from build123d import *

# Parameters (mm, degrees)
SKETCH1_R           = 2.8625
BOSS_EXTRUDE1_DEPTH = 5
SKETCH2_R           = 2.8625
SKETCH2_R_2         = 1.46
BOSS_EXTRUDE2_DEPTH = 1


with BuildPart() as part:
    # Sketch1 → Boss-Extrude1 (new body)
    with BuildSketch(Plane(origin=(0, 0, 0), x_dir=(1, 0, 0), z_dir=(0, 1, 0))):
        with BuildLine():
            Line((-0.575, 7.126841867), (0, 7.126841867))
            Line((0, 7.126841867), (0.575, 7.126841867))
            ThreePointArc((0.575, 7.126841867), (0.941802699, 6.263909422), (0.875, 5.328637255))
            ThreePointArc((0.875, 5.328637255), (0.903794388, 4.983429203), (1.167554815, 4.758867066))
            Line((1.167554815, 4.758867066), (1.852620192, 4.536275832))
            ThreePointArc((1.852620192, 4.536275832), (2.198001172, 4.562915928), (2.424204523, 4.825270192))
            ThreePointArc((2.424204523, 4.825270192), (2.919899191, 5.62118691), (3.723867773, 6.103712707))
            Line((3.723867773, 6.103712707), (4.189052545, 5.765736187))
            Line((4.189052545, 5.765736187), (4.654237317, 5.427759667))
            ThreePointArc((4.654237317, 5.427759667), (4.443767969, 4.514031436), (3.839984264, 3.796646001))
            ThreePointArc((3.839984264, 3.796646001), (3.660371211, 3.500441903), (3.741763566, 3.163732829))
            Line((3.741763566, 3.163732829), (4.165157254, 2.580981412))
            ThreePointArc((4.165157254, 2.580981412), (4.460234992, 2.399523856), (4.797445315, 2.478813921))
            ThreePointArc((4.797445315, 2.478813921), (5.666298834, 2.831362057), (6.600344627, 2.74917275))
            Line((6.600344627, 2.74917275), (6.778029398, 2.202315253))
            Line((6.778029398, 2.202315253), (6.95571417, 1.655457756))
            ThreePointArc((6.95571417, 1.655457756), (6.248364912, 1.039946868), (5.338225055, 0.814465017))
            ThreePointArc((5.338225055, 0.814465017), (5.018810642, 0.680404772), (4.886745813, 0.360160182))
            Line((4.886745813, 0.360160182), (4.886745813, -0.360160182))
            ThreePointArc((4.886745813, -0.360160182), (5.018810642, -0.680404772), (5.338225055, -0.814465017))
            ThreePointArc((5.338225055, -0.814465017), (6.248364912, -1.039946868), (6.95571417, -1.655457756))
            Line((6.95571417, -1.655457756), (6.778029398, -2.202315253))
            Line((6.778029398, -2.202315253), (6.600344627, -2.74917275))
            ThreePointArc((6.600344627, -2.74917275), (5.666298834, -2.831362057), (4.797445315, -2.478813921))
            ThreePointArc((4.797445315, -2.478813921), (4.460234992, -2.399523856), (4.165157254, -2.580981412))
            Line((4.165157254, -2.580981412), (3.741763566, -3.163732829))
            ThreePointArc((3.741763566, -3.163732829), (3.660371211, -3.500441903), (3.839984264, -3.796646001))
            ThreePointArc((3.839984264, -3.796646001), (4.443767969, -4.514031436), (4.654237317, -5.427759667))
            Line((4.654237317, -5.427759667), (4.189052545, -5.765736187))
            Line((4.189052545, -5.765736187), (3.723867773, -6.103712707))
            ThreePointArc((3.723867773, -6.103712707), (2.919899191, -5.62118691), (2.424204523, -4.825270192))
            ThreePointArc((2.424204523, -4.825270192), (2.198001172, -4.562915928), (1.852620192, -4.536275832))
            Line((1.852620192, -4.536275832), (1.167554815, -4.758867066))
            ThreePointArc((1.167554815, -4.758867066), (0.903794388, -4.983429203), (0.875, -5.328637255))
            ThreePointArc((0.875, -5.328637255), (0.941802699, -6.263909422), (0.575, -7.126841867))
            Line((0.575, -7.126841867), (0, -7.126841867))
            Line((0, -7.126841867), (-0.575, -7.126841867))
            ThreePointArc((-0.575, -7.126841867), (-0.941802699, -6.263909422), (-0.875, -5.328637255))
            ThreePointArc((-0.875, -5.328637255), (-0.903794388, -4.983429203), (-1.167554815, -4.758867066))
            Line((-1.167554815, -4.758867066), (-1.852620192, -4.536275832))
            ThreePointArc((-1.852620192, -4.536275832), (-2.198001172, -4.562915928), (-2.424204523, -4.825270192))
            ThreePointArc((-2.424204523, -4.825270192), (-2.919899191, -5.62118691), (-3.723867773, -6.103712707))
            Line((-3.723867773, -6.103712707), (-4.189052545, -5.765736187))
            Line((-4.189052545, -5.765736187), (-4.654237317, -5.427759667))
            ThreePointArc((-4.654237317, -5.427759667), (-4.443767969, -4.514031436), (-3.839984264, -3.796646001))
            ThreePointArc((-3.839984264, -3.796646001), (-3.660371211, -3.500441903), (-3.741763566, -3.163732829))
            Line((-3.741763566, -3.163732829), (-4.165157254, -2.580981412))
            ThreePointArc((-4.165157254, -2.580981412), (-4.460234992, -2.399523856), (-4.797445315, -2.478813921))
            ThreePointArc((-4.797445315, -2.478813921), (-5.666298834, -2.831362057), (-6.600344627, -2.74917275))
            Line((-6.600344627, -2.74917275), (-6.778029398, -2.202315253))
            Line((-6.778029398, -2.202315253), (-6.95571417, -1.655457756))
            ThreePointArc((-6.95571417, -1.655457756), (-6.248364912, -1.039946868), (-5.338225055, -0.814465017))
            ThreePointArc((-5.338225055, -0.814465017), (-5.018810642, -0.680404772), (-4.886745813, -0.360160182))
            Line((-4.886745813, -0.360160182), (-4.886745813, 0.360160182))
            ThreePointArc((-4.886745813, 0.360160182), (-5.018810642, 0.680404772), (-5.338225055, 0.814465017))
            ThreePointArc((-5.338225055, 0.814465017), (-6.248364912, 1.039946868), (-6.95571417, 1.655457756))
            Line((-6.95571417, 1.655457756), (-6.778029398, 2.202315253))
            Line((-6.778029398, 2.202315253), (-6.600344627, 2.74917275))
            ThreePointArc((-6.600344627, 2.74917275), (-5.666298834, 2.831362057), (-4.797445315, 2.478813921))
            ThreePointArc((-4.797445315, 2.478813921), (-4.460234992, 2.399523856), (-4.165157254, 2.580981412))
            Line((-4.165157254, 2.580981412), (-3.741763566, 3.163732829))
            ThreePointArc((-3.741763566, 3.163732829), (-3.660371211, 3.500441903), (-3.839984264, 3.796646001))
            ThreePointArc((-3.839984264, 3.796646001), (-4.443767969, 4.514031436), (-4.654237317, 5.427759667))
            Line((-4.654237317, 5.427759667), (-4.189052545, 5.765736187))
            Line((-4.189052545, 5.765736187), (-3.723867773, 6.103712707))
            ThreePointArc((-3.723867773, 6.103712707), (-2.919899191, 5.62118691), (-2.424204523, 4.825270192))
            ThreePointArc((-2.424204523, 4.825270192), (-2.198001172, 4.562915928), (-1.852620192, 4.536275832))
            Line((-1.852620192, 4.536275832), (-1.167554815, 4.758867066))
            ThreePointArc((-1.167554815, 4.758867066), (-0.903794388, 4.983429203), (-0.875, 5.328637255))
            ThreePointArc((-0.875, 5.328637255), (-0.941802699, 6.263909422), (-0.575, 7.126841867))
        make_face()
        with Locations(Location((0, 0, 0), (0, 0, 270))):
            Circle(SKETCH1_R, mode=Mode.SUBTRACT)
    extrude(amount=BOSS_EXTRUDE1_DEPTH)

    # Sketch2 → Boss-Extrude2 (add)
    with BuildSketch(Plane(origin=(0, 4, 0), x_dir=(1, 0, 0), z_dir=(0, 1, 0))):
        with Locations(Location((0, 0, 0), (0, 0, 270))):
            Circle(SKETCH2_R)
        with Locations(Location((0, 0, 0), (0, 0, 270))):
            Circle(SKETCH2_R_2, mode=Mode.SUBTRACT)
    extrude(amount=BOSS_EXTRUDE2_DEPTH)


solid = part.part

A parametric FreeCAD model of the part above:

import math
import FreeCAD as App
import Part
import Sketcher
Q = App.Units.Quantity

doc = App.newDocument("Part")
body = doc.addObject("PartDesign::Body", "Body")

# Sketch on XZ plane
sketch1 = body.newObject("Sketcher::SketchObject", "Sketch")
sketch1.AttachmentSupport = (doc.getObject("XZ_Plane"), [""])
sketch1.MapMode = "FlatFace"
sketch1.addGeometry([
    Part.LineSegment(App.Vector(0.57, -7.13, 0), App.Vector(-0.57, -7.13, 0)),  # 0
    Part.ArcOfCircle(Part.Circle(App.Vector(1.03, -5.93, 0), App.Vector(0, 0, 1), 2), math.radians(162), math.radians(217)),  # 1
    Part.ArcOfCircle(Part.Circle(App.Vector(-1.31, -5.19, 0), App.Vector(0, 0, 1), 0.45), math.radians(-18), math.radians(72)),  # 2
    Part.LineSegment(App.Vector(-1.17, -4.76, 0), App.Vector(-1.85, -4.54, 0)),  # 3
    Part.ArcOfCircle(Part.Circle(App.Vector(-1.99, -4.97, 0), App.Vector(0, 0, 1), 0.45), math.radians(72), math.radians(162)),  # 4
    Part.ArcOfCircle(Part.Circle(App.Vector(-4.32, -4.2, 0), App.Vector(0, 0, 1), 2), math.radians(-73), math.radians(-18)),  # 5
    Part.LineSegment(App.Vector(-3.72, -6.1, 0), App.Vector(-4.65, -5.43, 0)),  # 6
    Part.ArcOfCircle(Part.Circle(App.Vector(-2.65, -5.41, 0), App.Vector(0, 0, 1), 2), math.radians(126), math.radians(181)),  # 7
    Part.ArcOfCircle(Part.Circle(App.Vector(-4.11, -3.43, 0), App.Vector(0, 0, 1), 0.45), math.radians(-54), math.radians(36)),  # 8
    Part.LineSegment(App.Vector(-3.74, -3.16, 0), App.Vector(-4.17, -2.58, 0)),  # 9
    Part.ArcOfCircle(Part.Circle(App.Vector(-4.53, -2.85, 0), App.Vector(0, 0, 1), 0.45), math.radians(36), math.radians(126)),  # 10
    Part.ArcOfCircle(Part.Circle(App.Vector(-5.96, -0.85, 0), App.Vector(0, 0, 1), 2), math.radians(-109), math.radians(-54)),  # 11
    Part.LineSegment(App.Vector(-6.6, -2.75, 0), App.Vector(-6.78, -2.2, 0)),  # 12
    Part.LineSegment(App.Vector(-6.78, -2.2, 0), App.Vector(-6.96, -1.66, 0)),  # 13
    Part.ArcOfCircle(Part.Circle(App.Vector(-5.33, -2.81, 0), App.Vector(0, 0, 1), 2), math.radians(90), math.radians(145)),  # 14
    Part.ArcOfCircle(Part.Circle(App.Vector(-5.34, -0.36, 0), App.Vector(0, 0, 1), 0.45), math.radians(-90), math.radians(0)),  # 15
    Part.LineSegment(App.Vector(-4.89, -0.36, 0), App.Vector(-4.89, 0.36, 0)),  # 16
    Part.ArcOfCircle(Part.Circle(App.Vector(-5.34, 0.36, 0), App.Vector(0, 0, 1), 0.45), math.radians(0), math.radians(90)),  # 17
    Part.ArcOfCircle(Part.Circle(App.Vector(-5.33, 2.81, 0), App.Vector(0, 0, 1), 2), math.radians(-145), math.radians(-90)),  # 18
    Part.LineSegment(App.Vector(-6.96, 1.66, 0), App.Vector(-6.78, 2.2, 0)),  # 19
    Part.LineSegment(App.Vector(-6.78, 2.2, 0), App.Vector(-6.6, 2.75, 0)),  # 20
    Part.ArcOfCircle(Part.Circle(App.Vector(-5.96, 0.85, 0), App.Vector(0, 0, 1), 2), math.radians(54), math.radians(109)),  # 21
    Part.ArcOfCircle(Part.Circle(App.Vector(-4.53, 2.85, 0), App.Vector(0, 0, 1), 0.45), math.radians(-126), math.radians(-36)),  # 22
    Part.LineSegment(App.Vector(-4.17, 2.58, 0), App.Vector(-3.74, 3.16, 0)),  # 23
    Part.ArcOfCircle(Part.Circle(App.Vector(-4.11, 3.43, 0), App.Vector(0, 0, 1), 0.45), math.radians(-36), math.radians(54)),  # 24
    Part.ArcOfCircle(Part.Circle(App.Vector(-2.65, 5.41, 0), App.Vector(0, 0, 1), 2), math.radians(179), math.radians(234)),  # 25
    Part.LineSegment(App.Vector(-4.65, 5.43, 0), App.Vector(-3.72, 6.1, 0)),  # 26
    Part.ArcOfCircle(Part.Circle(App.Vector(-4.32, 4.2, 0), App.Vector(0, 0, 1), 2), math.radians(18), math.radians(73)),  # 27
    Part.ArcOfCircle(Part.Circle(App.Vector(-1.99, 4.97, 0), App.Vector(0, 0, 1), 0.45), math.radians(-162), math.radians(-72)),  # 28
    Part.LineSegment(App.Vector(-1.85, 4.54, 0), App.Vector(-1.17, 4.76, 0)),  # 29
    Part.ArcOfCircle(Part.Circle(App.Vector(-1.31, 5.19, 0), App.Vector(0, 0, 1), 0.45), math.radians(-72), math.radians(18)),  # 30
    Part.ArcOfCircle(Part.Circle(App.Vector(1.03, 5.93, 0), App.Vector(0, 0, 1), 2), math.radians(143), math.radians(198)),  # 31
    Part.LineSegment(App.Vector(-0.57, 7.13, 0), App.Vector(0.57, 7.13, 0)),  # 32
    Part.ArcOfCircle(Part.Circle(App.Vector(-1.03, 5.93, 0), App.Vector(0, 0, 1), 2), math.radians(-18), math.radians(37)),  # 33
    Part.ArcOfCircle(Part.Circle(App.Vector(1.31, 5.19, 0), App.Vector(0, 0, 1), 0.45), math.radians(162), math.radians(252)),  # 34
    Part.LineSegment(App.Vector(1.17, 4.76, 0), App.Vector(1.85, 4.54, 0)),  # 35
    Part.ArcOfCircle(Part.Circle(App.Vector(1.99, 4.97, 0), App.Vector(0, 0, 1), 0.45), math.radians(-108), math.radians(-18)),  # 36
    Part.ArcOfCircle(Part.Circle(App.Vector(4.32, 4.2, 0), App.Vector(0, 0, 1), 2), math.radians(107), math.radians(162)),  # 37
    Part.LineSegment(App.Vector(3.72, 6.1, 0), App.Vector(4.65, 5.43, 0)),  # 38
    Part.ArcOfCircle(Part.Circle(App.Vector(2.65, 5.41, 0), App.Vector(0, 0, 1), 2), math.radians(-54), math.radians(1)),  # 39
    Part.ArcOfCircle(Part.Circle(App.Vector(4.11, 3.43, 0), App.Vector(0, 0, 1), 0.45), math.radians(126), math.radians(216)),  # 40
    Part.LineSegment(App.Vector(3.74, 3.16, 0), App.Vector(4.17, 2.58, 0)),  # 41
    Part.ArcOfCircle(Part.Circle(App.Vector(4.53, 2.85, 0), App.Vector(0, 0, 1), 0.45), math.radians(-144), math.radians(-54)),  # 42
    Part.ArcOfCircle(Part.Circle(App.Vector(5.96, 0.85, 0), App.Vector(0, 0, 1), 2), math.radians(71), math.radians(126)),  # 43
    Part.LineSegment(App.Vector(6.6, 2.75, 0), App.Vector(6.78, 2.2, 0)),  # 44
    Part.LineSegment(App.Vector(6.78, 2.2, 0), App.Vector(6.96, 1.66, 0)),  # 45
    Part.ArcOfCircle(Part.Circle(App.Vector(5.33, 2.81, 0), App.Vector(0, 0, 1), 2), math.radians(-90), math.radians(-35)),  # 46
    Part.ArcOfCircle(Part.Circle(App.Vector(5.34, 0.36, 0), App.Vector(0, 0, 1), 0.45), math.radians(90), math.radians(180)),  # 47
    Part.LineSegment(App.Vector(4.89, 0.36, 0), App.Vector(4.89, -0.36, 0)),  # 48
    Part.ArcOfCircle(Part.Circle(App.Vector(5.34, -0.36, 0), App.Vector(0, 0, 1), 0.45), math.radians(180), math.radians(270)),  # 49
    Part.ArcOfCircle(Part.Circle(App.Vector(5.33, -2.81, 0), App.Vector(0, 0, 1), 2), math.radians(35), math.radians(90)),  # 50
    Part.LineSegment(App.Vector(6.96, -1.66, 0), App.Vector(6.78, -2.2, 0)),  # 51
    Part.LineSegment(App.Vector(6.78, -2.2, 0), App.Vector(6.6, -2.75, 0)),  # 52
    Part.ArcOfCircle(Part.Circle(App.Vector(5.96, -0.85, 0), App.Vector(0, 0, 1), 2), math.radians(-126), math.radians(-71)),  # 53
    Part.ArcOfCircle(Part.Circle(App.Vector(4.53, -2.85, 0), App.Vector(0, 0, 1), 0.45), math.radians(54), math.radians(144)),  # 54
    Part.LineSegment(App.Vector(4.17, -2.58, 0), App.Vector(3.74, -3.16, 0)),  # 55
    Part.ArcOfCircle(Part.Circle(App.Vector(4.11, -3.43, 0), App.Vector(0, 0, 1), 0.45), math.radians(144), math.radians(234)),  # 56
    Part.ArcOfCircle(Part.Circle(App.Vector(2.65, -5.41, 0), App.Vector(0, 0, 1), 2), math.radians(-1), math.radians(54)),  # 57
    Part.LineSegment(App.Vector(4.65, -5.43, 0), App.Vector(3.72, -6.1, 0)),  # 58
    Part.ArcOfCircle(Part.Circle(App.Vector(4.32, -4.2, 0), App.Vector(0, 0, 1), 2), math.radians(-162), math.radians(-107)),  # 59
    Part.ArcOfCircle(Part.Circle(App.Vector(1.99, -4.97, 0), App.Vector(0, 0, 1), 0.45), math.radians(18), math.radians(108)),  # 60
    Part.LineSegment(App.Vector(1.85, -4.54, 0), App.Vector(1.17, -4.76, 0)),  # 61
    Part.ArcOfCircle(Part.Circle(App.Vector(1.31, -5.19, 0), App.Vector(0, 0, 1), 0.45), math.radians(108), math.radians(198)),  # 62
    Part.ArcOfCircle(Part.Circle(App.Vector(-1.03, -5.93, 0), App.Vector(0, 0, 1), 2), math.radians(-37), math.radians(18)),  # 63
    Part.Circle(App.Vector(0, 0, 0), App.Vector(0, 0, 1), 2.86),  # 64
], False)
sketch1.addConstraint([
    Sketcher.Constraint("Coincident", 0, 2, 1, 2),
    Sketcher.Constraint("Tangent", 1, 1, 2, 1),
    Sketcher.Constraint("Tangent", 2, 2, 3, 1),
    Sketcher.Constraint("Tangent", 3, 2, 4, 1),
    Sketcher.Constraint("Tangent", 4, 2, 5, 2),
    Sketcher.Constraint("Coincident", 5, 1, 6, 1),
    Sketcher.Constraint("Coincident", 6, 2, 7, 2),
    Sketcher.Constraint("Tangent", 7, 1, 8, 1),
    Sketcher.Constraint("Tangent", 8, 2, 9, 1),
    Sketcher.Constraint("Tangent", 9, 2, 10, 1),
    Sketcher.Constraint("Tangent", 10, 2, 11, 2),
    Sketcher.Constraint("Coincident", 11, 1, 12, 1),
    Sketcher.Constraint("Coincident", 12, 2, 13, 1),
    Sketcher.Constraint("Coincident", 13, 2, 14, 2),
    Sketcher.Constraint("Tangent", 14, 1, 15, 1),
    Sketcher.Constraint("Tangent", 15, 2, 16, 1),
    Sketcher.Constraint("Tangent", 16, 2, 17, 1),
    Sketcher.Constraint("Tangent", 17, 2, 18, 2),
    Sketcher.Constraint("Coincident", 18, 1, 19, 1),
    Sketcher.Constraint("Coincident", 19, 2, 20, 1),
    Sketcher.Constraint("Coincident", 20, 2, 21, 2),
    Sketcher.Constraint("Tangent", 21, 1, 22, 1),
    Sketcher.Constraint("Tangent", 22, 2, 23, 1),
    Sketcher.Constraint("Tangent", 23, 2, 24, 1),
    Sketcher.Constraint("Tangent", 24, 2, 25, 2),
    Sketcher.Constraint("Coincident", 25, 1, 26, 1),
    Sketcher.Constraint("Coincident", 26, 2, 27, 2),
    Sketcher.Constraint("Tangent", 27, 1, 28, 1),
    Sketcher.Constraint("Tangent", 28, 2, 29, 1),
    Sketcher.Constraint("Tangent", 29, 2, 30, 1),
    Sketcher.Constraint("Tangent", 30, 2, 31, 2),
    Sketcher.Constraint("Coincident", 31, 1, 32, 1),
    Sketcher.Constraint("Coincident", 32, 2, 33, 2),
    Sketcher.Constraint("Tangent", 33, 1, 34, 1),
    Sketcher.Constraint("Tangent", 34, 2, 35, 1),
    Sketcher.Constraint("Tangent", 35, 2, 36, 1),
    Sketcher.Constraint("Tangent", 36, 2, 37, 2),
    Sketcher.Constraint("Coincident", 37, 1, 38, 1),
    Sketcher.Constraint("Coincident", 38, 2, 39, 2),
    Sketcher.Constraint("Tangent", 39, 1, 40, 1),
    Sketcher.Constraint("Tangent", 40, 2, 41, 1),
    Sketcher.Constraint("Tangent", 41, 2, 42, 1),
    Sketcher.Constraint("Tangent", 42, 2, 43, 2),
    Sketcher.Constraint("Coincident", 43, 1, 44, 1),
    Sketcher.Constraint("Coincident", 44, 2, 45, 1),
    Sketcher.Constraint("Coincident", 45, 2, 46, 2),
    Sketcher.Constraint("Tangent", 46, 1, 47, 1),
    Sketcher.Constraint("Tangent", 47, 2, 48, 1),
    Sketcher.Constraint("Tangent", 48, 2, 49, 1),
    Sketcher.Constraint("Tangent", 49, 2, 50, 2),
    Sketcher.Constraint("Coincident", 50, 1, 51, 1),
    Sketcher.Constraint("Coincident", 51, 2, 52, 1),
    Sketcher.Constraint("Coincident", 52, 2, 53, 2),
    Sketcher.Constraint("Tangent", 53, 1, 54, 1),
    Sketcher.Constraint("Tangent", 54, 2, 55, 1),
    Sketcher.Constraint("Tangent", 55, 2, 56, 1),
    Sketcher.Constraint("Tangent", 56, 2, 57, 2),
    Sketcher.Constraint("Coincident", 57, 1, 58, 1),
    Sketcher.Constraint("Coincident", 58, 2, 59, 2),
    Sketcher.Constraint("Tangent", 59, 1, 60, 1),
    Sketcher.Constraint("Tangent", 60, 2, 61, 1),
    Sketcher.Constraint("Tangent", 61, 2, 62, 1),
    Sketcher.Constraint("Tangent", 62, 2, 63, 2),
    Sketcher.Constraint("Coincident", 63, 1, 0, 1),
    Sketcher.Constraint("Horizontal", 0),
    Sketcher.Constraint("Vertical", 16),
    Sketcher.Constraint("Horizontal", 32),
    Sketcher.Constraint("Vertical", 48),
    Sketcher.Constraint("Coincident", 64, 3, -1, 1),
    Sketcher.Constraint("Equal", 2, 4),
    Sketcher.Constraint("Equal", 1, 5),
    Sketcher.Constraint("Equal", 5, 7),
    Sketcher.Constraint("Equal", 4, 8),
    Sketcher.Constraint("Equal", 8, 10),
    Sketcher.Constraint("Equal", 7, 11),
    Sketcher.Constraint("Equal", 11, 14),
    Sketcher.Constraint("Equal", 10, 15),
    Sketcher.Constraint("Equal", 15, 17),
    Sketcher.Constraint("Equal", 14, 18),
    Sketcher.Constraint("Equal", 18, 21),
    Sketcher.Constraint("Equal", 17, 22),
    Sketcher.Constraint("Equal", 22, 24),
    Sketcher.Constraint("Equal", 21, 25),
    Sketcher.Constraint("Equal", 25, 27),
    Sketcher.Constraint("Equal", 24, 28),
    Sketcher.Constraint("Equal", 28, 30),
    Sketcher.Constraint("Equal", 27, 31),
    Sketcher.Constraint("Equal", 31, 33),
    Sketcher.Constraint("Equal", 30, 34),
    Sketcher.Constraint("Equal", 34, 36),
    Sketcher.Constraint("Equal", 33, 37),
    Sketcher.Constraint("Equal", 37, 39),
    Sketcher.Constraint("Equal", 36, 40),
    Sketcher.Constraint("Equal", 40, 42),
    Sketcher.Constraint("Equal", 39, 43),
    Sketcher.Constraint("Equal", 43, 46),
    Sketcher.Constraint("Equal", 42, 47),
    Sketcher.Constraint("Equal", 47, 49),
    Sketcher.Constraint("Equal", 46, 50),
    Sketcher.Constraint("Equal", 50, 53),
    Sketcher.Constraint("Equal", 49, 54),
    Sketcher.Constraint("Equal", 54, 56),
    Sketcher.Constraint("Equal", 53, 57),
    Sketcher.Constraint("Equal", 57, 59),
    Sketcher.Constraint("Equal", 56, 60),
    Sketcher.Constraint("Equal", 60, 62),
    Sketcher.Constraint("Equal", 59, 63),
    Sketcher.Constraint("Symmetric", 1, 3, 33, 3, -1, 1),
    Sketcher.Constraint("Symmetric", 4, 3, 36, 3, -1, 1),
    Sketcher.Constraint("Symmetric", 7, 3, 39, 3, -1, 1),
    Sketcher.Constraint("Symmetric", 10, 3, 42, 3, -1, 1),
    Sketcher.Constraint("Symmetric", 14, 3, 46, 3, -1, 1),
    Sketcher.Constraint("Symmetric", 17, 3, 49, 3, -1, 1),
    Sketcher.Constraint("Symmetric", 21, 3, 53, 3, -1, 1),
    Sketcher.Constraint("Symmetric", 24, 3, 56, 3, -1, 1),
    Sketcher.Constraint("Symmetric", 27, 3, 59, 3, -1, 1),
    Sketcher.Constraint("Symmetric", 30, 3, 62, 3, -1, 1),
    Sketcher.Constraint("Symmetric", 5, 1, 37, 1, -1, 1),
    Sketcher.Constraint("Symmetric", 11, 1, 43, 1, -1, 1),
    Sketcher.Constraint("Symmetric", 12, 2, 44, 2, -1, 1),
    Sketcher.Constraint("Symmetric", 18, 1, 50, 1, -1, 1),
    Sketcher.Constraint("Symmetric", 19, 2, 51, 2, -1, 1),
    Sketcher.Constraint("Symmetric", 25, 1, 57, 1, -1, 1),
    Sketcher.Constraint("Symmetric", 31, 1, 63, 1, -1, 1),
    Sketcher.Constraint("Symmetric", 31, 3, 33, 3, -2),
    Sketcher.Constraint("Symmetric", 28, 3, 36, 3, -2),
    Sketcher.Constraint("Symmetric", 25, 3, 39, 3, -2),
    Sketcher.Constraint("Symmetric", 22, 3, 42, 3, -2),
    Sketcher.Constraint("Symmetric", 18, 3, 46, 3, -2),
    Sketcher.Constraint("Symmetric", 26, 2, 37, 1, -2),
    Sketcher.Constraint("Symmetric", 20, 2, 43, 1, -2),
    Sketcher.Constraint("Symmetric", 19, 2, 44, 2, -2),
    Sketcher.Constraint("Symmetric", 9, 2, 54, 2, -2),
    Sketcher.Constraint("Symmetric", 3, 2, 60, 2, -2),
    Sketcher.Constraint("Parallel", 12, 13),
    Sketcher.Constraint("Perpendicular", 3, 19),
    Sketcher.Constraint("Parallel", 19, 20),
    Sketcher.Constraint("Perpendicular", 6, 23),
    Sketcher.Constraint("Perpendicular", 9, 26),
    Sketcher.Constraint("Perpendicular", 20, 35),
    Sketcher.Constraint("Perpendicular", 23, 38),
    Sketcher.Constraint("Perpendicular", 26, 41),
    Sketcher.Constraint("Parallel", 44, 45),
    Sketcher.Constraint("Parallel", 51, 52),
    Sketcher.Constraint("Perpendicular", 41, 58),
    Sketcher.Constraint("Equal", 3, 9),
    Sketcher.Constraint("Equal", 12, 13),
    Sketcher.Constraint("Radius", 1, 2.0),
    Sketcher.Constraint("Angle", 3, Q("162 deg")),
    Sketcher.Constraint("Angle", 6, Q("144 deg")),
    Sketcher.Constraint("Diameter", 64, 5.725),
    Sketcher.Constraint("DistanceX", 0, 2, 0, 1, 1.15),
    Sketcher.Constraint("Distance", 6, 1.15),
    Sketcher.Constraint("Distance", 12, 0.575),
    Sketcher.Constraint("DistanceX", 1, 1, -1, 1, 0.875),
    Sketcher.Constraint("Radius", 2, 0.454314),
    Sketcher.Constraint("DistanceY", 16, 1, 16, 2, 0.72032),
    Sketcher.Constraint("DistanceX", 11, 3, -1, 1, 5.962898),
    Sketcher.Constraint("Distance", 3, 0.72032),
    Sketcher.Constraint("DistanceX", -1, 1, 1, 3, 1.030932),
    Sketcher.Constraint("DistanceY", 5, 3, -1, 1, 4.195381),
    Sketcher.Constraint("DistanceX", 7, 3, -1, 1, 2.654342),
    Sketcher.Constraint("DistanceX", 8, 3, -1, 1, 4.109311),
    Sketcher.Constraint("DistanceY", 8, 3, -1, 1, 3.430772),
    Sketcher.Constraint("DistanceX", 15, 3, -1, 1, 5.341059),
    Sketcher.Constraint("DistanceY", 0, 2, -1, 1, 7.126842),
    Sketcher.Constraint("DistanceX", 12, 2, -1, 1, 6.778029),
])
pad1 = body.newObject("PartDesign::Pad", "Pad")
pad1.Profile = sketch1
pad1.Length = 5
pad1.Reversed = True

# Sketch on XZ plane
sketch2 = body.newObject("Sketcher::SketchObject", "Sketch001")
sketch2.AttachmentSupport = (doc.getObject("XZ_Plane"), [""])
sketch2.MapMode = "FlatFace"
sketch2.AttachmentOffset = App.Placement(App.Vector(0, 0, -4), App.Rotation())
sketch2.addGeometry([
    Part.Circle(App.Vector(0, 0, 0), App.Vector(0, 0, 1), 2.9),
    Part.Circle(App.Vector(0, 0, 0), App.Vector(0, 0, 1), 1.5),
], False)
sketch2.addConstraint([
    Sketcher.Constraint("Coincident", 0, 3, -1, 1),
    Sketcher.Constraint("Coincident", 1, 3, -1, 1),
    Sketcher.Constraint("Diameter", 1, 2.92),
    Sketcher.Constraint("Diameter", 0, 5.725),
])
pad2 = body.newObject("PartDesign::Pad", "Pad001")
pad2.Profile = sketch2
pad2.Length = 1
pad2.Reversed = True

doc.recompute()
